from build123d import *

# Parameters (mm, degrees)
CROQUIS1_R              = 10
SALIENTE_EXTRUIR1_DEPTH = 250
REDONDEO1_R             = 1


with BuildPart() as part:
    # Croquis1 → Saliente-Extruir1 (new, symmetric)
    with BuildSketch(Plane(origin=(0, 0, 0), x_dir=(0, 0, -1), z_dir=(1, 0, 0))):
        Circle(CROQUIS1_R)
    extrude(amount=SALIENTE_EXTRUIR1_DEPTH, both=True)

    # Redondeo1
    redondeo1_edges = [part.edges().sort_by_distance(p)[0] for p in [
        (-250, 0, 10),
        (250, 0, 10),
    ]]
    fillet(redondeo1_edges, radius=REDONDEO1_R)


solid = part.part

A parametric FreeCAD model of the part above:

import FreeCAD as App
import Part
import Sketcher


def edges_at(feature, points):
    """Names of the edges that pass closest to the given points."""
    edges = feature.Shape.Edges
    near = lambda p: min(range(len(edges)), key=lambda i: edges[i].distToShape(Part.Vertex(*p))[0])
    return sorted({f"Edge{near(p) + 1}" for p in points})

doc = App.newDocument("Part")
body = doc.addObject("PartDesign::Body", "Body")

# Sketch on YZ plane
sketch1 = body.newObject("Sketcher::SketchObject", "Sketch")
sketch1.AttachmentSupport = (doc.getObject("YZ_Plane"), [""])
sketch1.MapMode = "FlatFace"
sketch1.addGeometry(Part.Circle(App.Vector(0, 0, 0), App.Vector(0, 0, 1), 10), False)
sketch1.addConstraint(Sketcher.Constraint("Coincident", 0, 3, -1, 1))
sketch1.addConstraint(Sketcher.Constraint("Diameter", 0, 20.0))
pad1 = body.newObject("PartDesign::Pad", "Pad")
pad1.Profile = sketch1
pad1.Length = 500
pad1.Midplane = True
doc.recompute()

fillet = body.newObject("PartDesign::Fillet", "Fillet")
fillet.Base = (pad1, edges_at(pad1, [(-250, 0, 10), (250, 0, 10)]))
fillet.Radius = 1

doc.recompute()
